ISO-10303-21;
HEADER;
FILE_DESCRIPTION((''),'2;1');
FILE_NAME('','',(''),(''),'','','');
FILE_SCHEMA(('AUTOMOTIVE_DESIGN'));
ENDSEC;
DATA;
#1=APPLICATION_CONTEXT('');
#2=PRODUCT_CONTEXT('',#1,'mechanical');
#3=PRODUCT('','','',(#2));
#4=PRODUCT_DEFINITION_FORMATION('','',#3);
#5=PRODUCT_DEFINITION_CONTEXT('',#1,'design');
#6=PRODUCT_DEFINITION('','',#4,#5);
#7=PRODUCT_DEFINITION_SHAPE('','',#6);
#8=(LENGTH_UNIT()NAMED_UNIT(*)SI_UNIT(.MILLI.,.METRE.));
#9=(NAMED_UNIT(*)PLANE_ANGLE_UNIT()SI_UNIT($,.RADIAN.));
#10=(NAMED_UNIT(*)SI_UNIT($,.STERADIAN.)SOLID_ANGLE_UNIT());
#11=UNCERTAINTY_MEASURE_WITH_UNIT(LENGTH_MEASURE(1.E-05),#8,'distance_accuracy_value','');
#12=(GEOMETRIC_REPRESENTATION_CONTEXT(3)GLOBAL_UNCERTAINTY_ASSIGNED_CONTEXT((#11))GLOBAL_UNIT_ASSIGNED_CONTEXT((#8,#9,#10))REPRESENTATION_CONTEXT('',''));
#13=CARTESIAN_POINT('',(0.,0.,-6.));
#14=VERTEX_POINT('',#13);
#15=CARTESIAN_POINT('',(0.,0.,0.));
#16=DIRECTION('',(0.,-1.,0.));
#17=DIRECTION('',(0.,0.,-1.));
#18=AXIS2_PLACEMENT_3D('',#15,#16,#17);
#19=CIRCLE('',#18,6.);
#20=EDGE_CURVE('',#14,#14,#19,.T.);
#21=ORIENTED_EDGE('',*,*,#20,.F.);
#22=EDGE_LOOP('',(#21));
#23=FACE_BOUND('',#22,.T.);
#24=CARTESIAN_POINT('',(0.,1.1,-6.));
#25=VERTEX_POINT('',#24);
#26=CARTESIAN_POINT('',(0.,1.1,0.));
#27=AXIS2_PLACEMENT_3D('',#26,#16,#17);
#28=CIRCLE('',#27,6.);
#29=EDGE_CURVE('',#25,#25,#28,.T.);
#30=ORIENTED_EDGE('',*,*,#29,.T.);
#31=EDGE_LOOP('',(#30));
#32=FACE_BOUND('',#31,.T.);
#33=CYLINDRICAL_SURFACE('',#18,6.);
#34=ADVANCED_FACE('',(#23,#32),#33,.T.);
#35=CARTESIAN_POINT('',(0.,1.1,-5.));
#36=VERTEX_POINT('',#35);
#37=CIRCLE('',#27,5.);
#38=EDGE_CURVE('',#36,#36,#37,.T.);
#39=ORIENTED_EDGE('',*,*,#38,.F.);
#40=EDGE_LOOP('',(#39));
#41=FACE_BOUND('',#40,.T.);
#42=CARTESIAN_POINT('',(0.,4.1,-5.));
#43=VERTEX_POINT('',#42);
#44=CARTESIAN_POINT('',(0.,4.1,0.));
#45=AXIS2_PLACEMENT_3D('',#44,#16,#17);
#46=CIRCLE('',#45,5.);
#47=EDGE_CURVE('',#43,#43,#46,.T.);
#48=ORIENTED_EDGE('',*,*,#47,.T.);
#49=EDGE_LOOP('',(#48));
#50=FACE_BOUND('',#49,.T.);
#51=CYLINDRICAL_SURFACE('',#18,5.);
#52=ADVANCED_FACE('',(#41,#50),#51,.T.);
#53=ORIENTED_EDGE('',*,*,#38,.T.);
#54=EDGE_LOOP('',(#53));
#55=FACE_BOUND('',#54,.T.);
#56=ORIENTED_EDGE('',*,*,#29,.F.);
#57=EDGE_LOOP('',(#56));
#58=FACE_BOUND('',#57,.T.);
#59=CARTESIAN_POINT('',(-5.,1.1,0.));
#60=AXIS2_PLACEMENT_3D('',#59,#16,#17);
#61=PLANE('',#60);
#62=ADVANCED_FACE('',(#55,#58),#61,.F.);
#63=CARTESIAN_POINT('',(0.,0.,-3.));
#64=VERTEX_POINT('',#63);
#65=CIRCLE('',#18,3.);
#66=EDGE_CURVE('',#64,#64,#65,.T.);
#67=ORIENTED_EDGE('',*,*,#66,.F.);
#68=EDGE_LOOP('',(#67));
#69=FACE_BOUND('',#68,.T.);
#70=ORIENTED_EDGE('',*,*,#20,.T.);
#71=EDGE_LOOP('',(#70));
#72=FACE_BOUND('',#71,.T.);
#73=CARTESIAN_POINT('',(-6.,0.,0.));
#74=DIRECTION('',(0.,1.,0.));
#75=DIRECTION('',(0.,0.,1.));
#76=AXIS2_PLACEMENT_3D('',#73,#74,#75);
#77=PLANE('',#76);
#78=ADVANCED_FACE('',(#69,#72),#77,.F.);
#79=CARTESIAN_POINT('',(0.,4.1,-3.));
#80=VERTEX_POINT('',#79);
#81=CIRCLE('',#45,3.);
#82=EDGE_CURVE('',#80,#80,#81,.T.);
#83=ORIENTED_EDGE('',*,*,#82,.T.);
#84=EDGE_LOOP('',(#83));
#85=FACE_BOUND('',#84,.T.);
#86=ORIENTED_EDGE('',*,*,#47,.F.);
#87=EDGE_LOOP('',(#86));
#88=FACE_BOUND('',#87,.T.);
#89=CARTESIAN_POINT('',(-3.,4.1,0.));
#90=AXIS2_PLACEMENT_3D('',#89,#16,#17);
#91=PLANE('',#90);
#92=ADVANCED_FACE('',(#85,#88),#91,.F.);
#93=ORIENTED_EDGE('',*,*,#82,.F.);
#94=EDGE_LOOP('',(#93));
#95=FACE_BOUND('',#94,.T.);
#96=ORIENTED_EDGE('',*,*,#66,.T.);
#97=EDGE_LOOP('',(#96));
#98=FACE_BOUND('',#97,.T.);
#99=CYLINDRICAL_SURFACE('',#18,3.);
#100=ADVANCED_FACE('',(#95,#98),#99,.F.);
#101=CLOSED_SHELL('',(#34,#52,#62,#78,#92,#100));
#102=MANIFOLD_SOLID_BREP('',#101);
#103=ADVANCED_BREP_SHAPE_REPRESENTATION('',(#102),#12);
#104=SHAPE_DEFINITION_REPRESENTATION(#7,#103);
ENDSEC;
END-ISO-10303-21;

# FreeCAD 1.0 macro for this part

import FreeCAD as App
import Part
import Sketcher
Q = App.Units.Quantity


def add_polygon(sketch, points):
    """Adds a closed chain of lines whose ends are joined by coincident constraints."""
    first, n = sketch.GeometryCount, len(points)
    for a, b in zip(points, points[1:] + points[:1]):
        sketch.addGeometry(Part.LineSegment(App.Vector(*a, 0), App.Vector(*b, 0)), False)
    for i in range(n):
        sketch.addConstraint(Sketcher.Constraint("Coincident", first + i, 2, first + (i + 1) % n, 1))

doc = App.newDocument("Part")
params = doc.addObject("Spreadsheet::Sheet", "Params")
for row, (alias, value) in enumerate([
    ("sketch1_width", "3 mm"),
    ("sketch1_width2", "2 mm"),
    ("sketch1_height", "4.1 mm"),
    ("revolution_angle", "360 deg"),
], start=1):
    params.set(f"A{row}", alias)
    params.set(f"B{row}", "=" + value)
    params.setAlias(f"B{row}", alias)

body = doc.addObject("PartDesign::Body", "Body")

# Sketch on XY plane
sketch1 = doc.addObject("Sketcher::SketchObject", "Sketch")
body.addObject(sketch1)
sketch1.AttachmentSupport = (doc.XY_Plane, [""])
sketch1.MapMode = "FlatFace"
add_polygon(sketch1, [(-6, 0), (-3, 0), (-3, 4.1), (-5, 4.1), (-5, 1.1), (-6, 1.1)])  # lines 0-5
sketch1.addConstraint([
    Sketcher.Constraint("Horizontal", 0),
    Sketcher.Constraint("Vertical", 1),
    Sketcher.Constraint("Horizontal", 2),
    Sketcher.Constraint("Vertical", 3),
    Sketcher.Constraint("Horizontal", 4),
    Sketcher.Constraint("Vertical", 5),
    Sketcher.Constraint("PointOnObject", 0, 2, -1),
    Sketcher.Constraint("Equal", 0, 3),
    Sketcher.Constraint("DistanceX", 0, 1, 0, 2, Q("3 mm")),
    Sketcher.Constraint("DistanceX", 2, 2, 2, 1, Q("2 mm")),
    Sketcher.Constraint("DistanceY", 1, 1, 1, 2, Q("4.1 mm")),
    Sketcher.Constraint("DistanceX", 0, 2, -1, 1, Q("3 mm")),
])
sketch1.setExpression("Constraints[14]", "Params.sketch1_width")
sketch1.setExpression("Constraints[15]", "Params.sketch1_width2")
sketch1.setExpression("Constraints[16]", "Params.sketch1_height")
revolution = doc.addObject("PartDesign::Revolution", "Revolution")
body.addObject(revolution)
revolution.Profile = sketch1
revolution.ReferenceAxis = (sketch1, ["V_Axis"])
revolution.setExpression("Angle", "Params.revolution_angle")

doc.recompute()
